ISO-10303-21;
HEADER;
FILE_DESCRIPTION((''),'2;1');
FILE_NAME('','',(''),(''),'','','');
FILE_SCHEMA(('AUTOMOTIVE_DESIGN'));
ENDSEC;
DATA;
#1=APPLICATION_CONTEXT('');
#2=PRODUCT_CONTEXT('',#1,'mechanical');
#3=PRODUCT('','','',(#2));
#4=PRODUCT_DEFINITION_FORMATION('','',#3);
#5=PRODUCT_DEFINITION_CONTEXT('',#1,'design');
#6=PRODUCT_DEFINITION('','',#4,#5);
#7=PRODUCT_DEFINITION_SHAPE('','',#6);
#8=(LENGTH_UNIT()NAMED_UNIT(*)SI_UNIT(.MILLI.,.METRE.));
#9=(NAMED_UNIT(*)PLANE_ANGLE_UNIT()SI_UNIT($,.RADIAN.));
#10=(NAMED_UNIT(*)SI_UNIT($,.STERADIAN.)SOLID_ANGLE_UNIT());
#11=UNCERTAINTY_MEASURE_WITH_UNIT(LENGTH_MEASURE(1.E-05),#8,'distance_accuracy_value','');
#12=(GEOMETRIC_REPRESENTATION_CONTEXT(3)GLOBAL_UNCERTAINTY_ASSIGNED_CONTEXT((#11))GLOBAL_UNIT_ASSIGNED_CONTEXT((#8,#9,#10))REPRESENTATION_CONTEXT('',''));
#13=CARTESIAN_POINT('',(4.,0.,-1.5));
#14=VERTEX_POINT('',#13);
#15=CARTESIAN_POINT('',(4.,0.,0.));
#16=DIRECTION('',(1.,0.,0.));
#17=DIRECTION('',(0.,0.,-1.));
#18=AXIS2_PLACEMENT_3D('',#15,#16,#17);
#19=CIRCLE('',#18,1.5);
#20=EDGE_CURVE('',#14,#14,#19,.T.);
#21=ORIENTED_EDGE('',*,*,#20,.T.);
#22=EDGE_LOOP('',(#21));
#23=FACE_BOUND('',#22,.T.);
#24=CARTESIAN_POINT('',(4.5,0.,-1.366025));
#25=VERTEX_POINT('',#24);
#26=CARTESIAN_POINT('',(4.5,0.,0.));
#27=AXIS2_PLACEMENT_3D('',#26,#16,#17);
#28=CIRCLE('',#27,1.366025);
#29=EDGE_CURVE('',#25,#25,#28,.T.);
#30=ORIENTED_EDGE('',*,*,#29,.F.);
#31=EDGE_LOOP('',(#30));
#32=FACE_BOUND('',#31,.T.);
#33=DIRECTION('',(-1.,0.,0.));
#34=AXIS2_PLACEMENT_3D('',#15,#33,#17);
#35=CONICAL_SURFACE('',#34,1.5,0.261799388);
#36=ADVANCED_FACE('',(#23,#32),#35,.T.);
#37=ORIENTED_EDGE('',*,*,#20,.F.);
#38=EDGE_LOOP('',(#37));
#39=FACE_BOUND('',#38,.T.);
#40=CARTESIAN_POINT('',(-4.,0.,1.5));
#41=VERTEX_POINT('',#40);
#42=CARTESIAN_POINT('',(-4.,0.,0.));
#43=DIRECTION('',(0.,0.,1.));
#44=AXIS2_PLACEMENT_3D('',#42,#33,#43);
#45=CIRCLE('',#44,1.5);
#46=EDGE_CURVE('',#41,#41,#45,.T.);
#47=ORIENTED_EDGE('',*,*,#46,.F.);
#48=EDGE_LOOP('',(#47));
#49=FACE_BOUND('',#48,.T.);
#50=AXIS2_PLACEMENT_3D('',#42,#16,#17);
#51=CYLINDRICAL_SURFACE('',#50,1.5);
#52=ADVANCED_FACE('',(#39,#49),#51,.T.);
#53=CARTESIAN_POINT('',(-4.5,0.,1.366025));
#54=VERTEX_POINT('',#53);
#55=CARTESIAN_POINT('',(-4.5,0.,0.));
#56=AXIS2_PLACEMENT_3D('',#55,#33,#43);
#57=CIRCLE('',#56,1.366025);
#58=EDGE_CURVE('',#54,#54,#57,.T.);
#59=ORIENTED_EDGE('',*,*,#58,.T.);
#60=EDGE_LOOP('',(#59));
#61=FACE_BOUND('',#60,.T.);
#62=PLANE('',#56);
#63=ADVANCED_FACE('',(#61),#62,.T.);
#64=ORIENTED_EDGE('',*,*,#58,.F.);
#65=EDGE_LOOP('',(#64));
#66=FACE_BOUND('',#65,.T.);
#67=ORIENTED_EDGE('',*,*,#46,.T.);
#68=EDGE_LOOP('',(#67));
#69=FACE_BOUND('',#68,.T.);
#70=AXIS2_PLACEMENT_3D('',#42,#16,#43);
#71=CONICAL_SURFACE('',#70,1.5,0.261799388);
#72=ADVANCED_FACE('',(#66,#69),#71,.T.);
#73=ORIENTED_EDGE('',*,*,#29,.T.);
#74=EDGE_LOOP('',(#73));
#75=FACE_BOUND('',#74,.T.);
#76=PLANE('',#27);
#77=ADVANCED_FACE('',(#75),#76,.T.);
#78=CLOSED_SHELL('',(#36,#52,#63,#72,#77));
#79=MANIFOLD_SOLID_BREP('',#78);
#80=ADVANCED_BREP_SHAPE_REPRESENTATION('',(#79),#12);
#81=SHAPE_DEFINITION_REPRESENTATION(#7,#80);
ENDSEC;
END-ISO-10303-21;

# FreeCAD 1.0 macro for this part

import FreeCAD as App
import Part
import Sketcher
from FreeCAD import Vector
Q = App.Units.Quantity

doc = App.newDocument("Part")
params = doc.addObject("Spreadsheet::Sheet", "Params")
for row, (alias, value) in enumerate([
    ("sketch1_diameter", "3 mm"),
    ("pad1_length", "4 mm"),
    ("pad1_length2", "4 mm"),
    ("sketch2_diameter", "3 mm"),
    ("pad2_length", "0.5 mm"),
    ("pad2_taper", "-15 deg"),
    ("sketch3_diameter", "3 mm"),
    ("pad3_length", "0.5 mm"),
    ("pad3_taper", "-15 deg"),
], start=1):
    params.set(f"A{row}", alias)
    params.set(f"B{row}", "=" + value)
    params.setAlias(f"B{row}", alias)

body = doc.addObject("PartDesign::Body", "Body")

sketch1 = doc.addObject("Sketcher::SketchObject", "Sketch")
body.addObject(sketch1)
sketch1.AttachmentSupport = (doc.YZ_Plane, [""])
sketch1.MapMode = "FlatFace"
sketch1.addGeometry(Part.Circle(Vector(0, 0, 0), Vector(0, 0, 1), 1.5), False)
sketch1.addConstraint([
    Sketcher.Constraint("Coincident", 0, 3, -1, 1),
    Sketcher.Constraint("Diameter", 0, Q("3 mm")),
])
sketch1.setExpression("Constraints[1]", "Params.sketch1_diameter")
pad1 = doc.addObject("PartDesign::Pad", "Pad")
body.addObject(pad1)
pad1.Profile = sketch1
pad1.Type = "TwoLengths"
pad1.setExpression("Length", "Params.pad1_length")
pad1.setExpression("Length2", "Params.pad1_length2")

sketch2 = doc.addObject("Sketcher::SketchObject", "Sketch001")
body.addObject(sketch2)
sketch2.AttachmentSupport = (doc.YZ_Plane, [""])
sketch2.MapMode = "FlatFace"
sketch2.AttachmentOffset = App.Placement(Vector(0, 0, 4), App.Rotation())
sketch2.addGeometry(Part.Circle(Vector(0, 0, 0), Vector(0, 0, 1), 1.5), False)
sketch2.addConstraint([
    Sketcher.Constraint("Coincident", 0, 3, -1, 1),
    Sketcher.Constraint("Diameter", 0, Q("3 mm")),
])
sketch2.setExpression("Constraints[1]", "Params.sketch2_diameter")
pad2 = doc.addObject("PartDesign::Pad", "Pad001")
body.addObject(pad2)
pad2.Profile = sketch2
pad2.setExpression("Length", "Params.pad2_length")
pad2.setExpression("TaperAngle", "Params.pad2_taper")

sketch3 = doc.addObject("Sketcher::SketchObject", "Sketch002")
body.addObject(sketch3)
sketch3.AttachmentSupport = (doc.YZ_Plane, [""])
sketch3.MapMode = "FlatFace"
sketch3.AttachmentOffset = App.Placement(Vector(0, 0, -4), App.Rotation())
sketch3.addGeometry(Part.Circle(Vector(0, 0, 0), Vector(0, 0, 1), 1.5), False)
sketch3.addConstraint([
    Sketcher.Constraint("Coincident", 0, 3, -1, 1),
    Sketcher.Constraint("Diameter", 0, Q("3 mm")),
])
sketch3.setExpression("Constraints[1]", "Params.sketch3_diameter")
pad3 = doc.addObject("PartDesign::Pad", "Pad002")
body.addObject(pad3)
pad3.Profile = sketch3
pad3.setExpression("Length", "Params.pad3_length")
pad3.Reversed = True
pad3.setExpression("TaperAngle", "Params.pad3_taper")

doc.recompute()
